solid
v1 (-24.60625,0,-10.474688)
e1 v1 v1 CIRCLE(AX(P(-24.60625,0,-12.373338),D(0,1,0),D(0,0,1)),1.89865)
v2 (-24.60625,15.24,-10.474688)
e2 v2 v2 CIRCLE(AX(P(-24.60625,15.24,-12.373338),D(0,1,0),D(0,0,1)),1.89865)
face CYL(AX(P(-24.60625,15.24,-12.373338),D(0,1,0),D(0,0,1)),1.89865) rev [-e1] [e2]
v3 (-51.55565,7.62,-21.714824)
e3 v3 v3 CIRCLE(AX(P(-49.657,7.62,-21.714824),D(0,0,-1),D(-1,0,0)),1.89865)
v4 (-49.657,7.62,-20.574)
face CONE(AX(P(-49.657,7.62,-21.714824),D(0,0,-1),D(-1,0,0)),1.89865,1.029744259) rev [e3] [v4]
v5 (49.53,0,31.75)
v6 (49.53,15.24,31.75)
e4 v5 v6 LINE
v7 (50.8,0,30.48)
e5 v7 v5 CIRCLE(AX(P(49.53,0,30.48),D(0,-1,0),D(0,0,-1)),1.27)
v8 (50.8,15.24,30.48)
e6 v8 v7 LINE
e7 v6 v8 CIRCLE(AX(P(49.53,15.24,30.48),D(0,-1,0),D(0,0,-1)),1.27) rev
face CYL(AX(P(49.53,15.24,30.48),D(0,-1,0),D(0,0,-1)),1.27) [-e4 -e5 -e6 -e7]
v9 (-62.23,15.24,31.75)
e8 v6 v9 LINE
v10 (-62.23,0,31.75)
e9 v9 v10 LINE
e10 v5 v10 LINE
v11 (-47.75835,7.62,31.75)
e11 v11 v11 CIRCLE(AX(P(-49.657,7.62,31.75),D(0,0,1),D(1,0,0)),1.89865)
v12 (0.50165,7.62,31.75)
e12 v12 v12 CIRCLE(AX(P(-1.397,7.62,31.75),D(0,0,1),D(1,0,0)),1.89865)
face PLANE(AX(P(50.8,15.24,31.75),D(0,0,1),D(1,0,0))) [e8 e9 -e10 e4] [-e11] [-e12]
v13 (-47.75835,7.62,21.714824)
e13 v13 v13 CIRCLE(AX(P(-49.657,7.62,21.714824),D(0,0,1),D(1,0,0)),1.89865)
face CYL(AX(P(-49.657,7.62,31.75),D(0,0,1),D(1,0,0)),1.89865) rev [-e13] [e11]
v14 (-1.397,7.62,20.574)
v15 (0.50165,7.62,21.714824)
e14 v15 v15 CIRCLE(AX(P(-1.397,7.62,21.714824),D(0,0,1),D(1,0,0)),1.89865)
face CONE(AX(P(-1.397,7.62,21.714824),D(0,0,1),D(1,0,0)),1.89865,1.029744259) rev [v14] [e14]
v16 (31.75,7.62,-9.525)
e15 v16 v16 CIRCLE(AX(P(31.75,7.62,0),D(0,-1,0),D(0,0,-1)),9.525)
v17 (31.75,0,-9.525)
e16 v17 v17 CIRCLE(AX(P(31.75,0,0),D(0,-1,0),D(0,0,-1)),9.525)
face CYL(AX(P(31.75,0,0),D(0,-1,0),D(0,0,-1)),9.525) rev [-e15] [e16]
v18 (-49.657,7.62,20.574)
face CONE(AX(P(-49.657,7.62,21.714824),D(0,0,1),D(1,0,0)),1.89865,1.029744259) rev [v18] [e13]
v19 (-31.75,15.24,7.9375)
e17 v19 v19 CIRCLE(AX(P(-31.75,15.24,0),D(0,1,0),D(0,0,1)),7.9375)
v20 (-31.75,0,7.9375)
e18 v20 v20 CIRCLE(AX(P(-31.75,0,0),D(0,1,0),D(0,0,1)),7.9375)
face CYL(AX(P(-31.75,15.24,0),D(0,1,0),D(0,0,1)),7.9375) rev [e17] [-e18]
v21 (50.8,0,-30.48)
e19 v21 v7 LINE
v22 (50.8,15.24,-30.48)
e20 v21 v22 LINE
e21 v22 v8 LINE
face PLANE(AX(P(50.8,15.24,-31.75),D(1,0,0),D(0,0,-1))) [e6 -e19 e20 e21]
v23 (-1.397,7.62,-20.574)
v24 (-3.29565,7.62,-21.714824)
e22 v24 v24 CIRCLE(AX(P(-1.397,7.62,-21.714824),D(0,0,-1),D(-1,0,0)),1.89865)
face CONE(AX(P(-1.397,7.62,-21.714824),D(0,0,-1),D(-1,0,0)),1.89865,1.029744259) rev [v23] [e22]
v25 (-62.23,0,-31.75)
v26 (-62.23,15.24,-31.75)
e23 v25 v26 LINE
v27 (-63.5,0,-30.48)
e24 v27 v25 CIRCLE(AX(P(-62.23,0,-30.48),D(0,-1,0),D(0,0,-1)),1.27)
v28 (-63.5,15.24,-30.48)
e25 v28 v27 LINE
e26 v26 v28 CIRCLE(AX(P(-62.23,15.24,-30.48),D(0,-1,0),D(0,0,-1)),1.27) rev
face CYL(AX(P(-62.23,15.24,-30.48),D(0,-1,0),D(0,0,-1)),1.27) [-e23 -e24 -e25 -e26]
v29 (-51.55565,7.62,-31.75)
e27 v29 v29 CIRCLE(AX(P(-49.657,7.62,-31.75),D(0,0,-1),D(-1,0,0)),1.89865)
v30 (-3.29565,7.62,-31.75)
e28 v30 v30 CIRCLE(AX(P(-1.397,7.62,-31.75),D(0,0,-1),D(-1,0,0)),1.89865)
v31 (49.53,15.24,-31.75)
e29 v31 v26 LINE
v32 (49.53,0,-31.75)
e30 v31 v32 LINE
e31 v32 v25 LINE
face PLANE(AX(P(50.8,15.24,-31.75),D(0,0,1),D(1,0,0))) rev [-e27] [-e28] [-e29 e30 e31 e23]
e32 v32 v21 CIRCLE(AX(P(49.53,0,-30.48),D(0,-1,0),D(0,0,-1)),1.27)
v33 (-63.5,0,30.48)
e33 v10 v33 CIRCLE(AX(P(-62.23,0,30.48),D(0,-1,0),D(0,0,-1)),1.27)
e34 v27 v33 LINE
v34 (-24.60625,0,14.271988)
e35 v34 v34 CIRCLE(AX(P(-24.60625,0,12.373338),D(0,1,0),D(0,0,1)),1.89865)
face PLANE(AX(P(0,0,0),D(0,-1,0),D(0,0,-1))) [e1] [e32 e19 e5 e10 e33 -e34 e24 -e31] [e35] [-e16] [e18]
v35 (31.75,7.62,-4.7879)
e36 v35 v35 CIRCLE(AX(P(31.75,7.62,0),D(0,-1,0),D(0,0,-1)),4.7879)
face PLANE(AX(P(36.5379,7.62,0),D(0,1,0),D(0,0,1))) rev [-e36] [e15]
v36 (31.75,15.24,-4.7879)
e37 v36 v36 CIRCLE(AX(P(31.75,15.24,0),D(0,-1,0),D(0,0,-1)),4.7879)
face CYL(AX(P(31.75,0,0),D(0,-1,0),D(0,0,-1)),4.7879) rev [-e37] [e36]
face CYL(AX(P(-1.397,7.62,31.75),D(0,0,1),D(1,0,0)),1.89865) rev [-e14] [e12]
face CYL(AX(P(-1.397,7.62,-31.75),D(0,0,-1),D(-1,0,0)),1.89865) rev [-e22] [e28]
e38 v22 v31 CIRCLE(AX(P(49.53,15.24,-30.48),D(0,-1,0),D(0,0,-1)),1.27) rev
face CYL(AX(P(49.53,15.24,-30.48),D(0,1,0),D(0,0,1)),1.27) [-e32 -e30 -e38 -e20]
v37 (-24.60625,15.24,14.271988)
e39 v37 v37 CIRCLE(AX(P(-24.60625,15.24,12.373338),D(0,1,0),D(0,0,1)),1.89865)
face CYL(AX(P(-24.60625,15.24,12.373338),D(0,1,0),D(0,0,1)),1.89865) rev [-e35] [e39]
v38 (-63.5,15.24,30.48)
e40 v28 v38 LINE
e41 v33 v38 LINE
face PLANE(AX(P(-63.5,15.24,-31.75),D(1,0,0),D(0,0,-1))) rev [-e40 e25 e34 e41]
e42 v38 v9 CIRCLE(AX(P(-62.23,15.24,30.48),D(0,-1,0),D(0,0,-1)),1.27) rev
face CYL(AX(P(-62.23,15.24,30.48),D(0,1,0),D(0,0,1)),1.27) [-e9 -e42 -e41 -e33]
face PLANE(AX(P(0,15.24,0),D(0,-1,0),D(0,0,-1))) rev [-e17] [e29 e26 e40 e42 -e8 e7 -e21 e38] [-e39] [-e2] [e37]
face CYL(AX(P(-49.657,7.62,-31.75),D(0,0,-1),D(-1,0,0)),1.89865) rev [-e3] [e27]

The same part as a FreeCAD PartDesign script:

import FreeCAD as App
import Part
import Sketcher
from FreeCAD import Vector
Q = App.Units.Quantity


def edges_at(feature, points):
    """Names of the edges that pass closest to the given points."""
    edges = feature.Shape.Edges
    near = lambda p: min(range(len(edges)), key=lambda i: edges[i].distToShape(Part.Vertex(*p))[0])
    return sorted({f"Edge{near(p) + 1}" for p in points})

doc = App.newDocument("Part")
body = doc.addObject("PartDesign::Body", "Body")

# Sketch on XZ plane
sketch1 = doc.addObject("Sketcher::SketchObject", "Sketch")
body.addObject(sketch1)
sketch1.AttachmentSupport = (doc.XZ_Plane, [""])
sketch1.MapMode = "FlatFace"
sketch1.addGeometry([
    Part.LineSegment(Vector(-64, -32, 0), Vector(-64, 32, 0)),
    Part.LineSegment(Vector(-64, 32, 0), Vector(51, 32, 0)),
    Part.LineSegment(Vector(51, 32, 0), Vector(51, -32, 0)),
    Part.LineSegment(Vector(51, -32, 0), Vector(-64, -32, 0)),
], False)
sketch1.addConstraint([
    Sketcher.Constraint("Coincident", 0, 2, 1, 1),
    Sketcher.Constraint("Coincident", 1, 2, 2, 1),
    Sketcher.Constraint("Coincident", 2, 2, 3, 1),
    Sketcher.Constraint("Coincident", 3, 2, 0, 1),
    Sketcher.Constraint("Vertical", 0),
    Sketcher.Constraint("Horizontal", 1),
    Sketcher.Constraint("Vertical", 2),
    Sketcher.Constraint("Horizontal", 3),
    Sketcher.Constraint("DistanceX", 1, 1, 1, 2, Q("4.5 in")),
    Sketcher.Constraint("DistanceY", 0, 1, 0, 2, Q("2.5 in")),
    Sketcher.Constraint("DistanceX", -1, 1, 1, 2, Q("2 in")),
    Sketcher.Constraint("DistanceY", -1, 1, 0, 2, Q("1.25 in")),
])
pad1 = doc.addObject("PartDesign::Pad", "Pad")
body.addObject(pad1)
pad1.Profile = sketch1
pad1.Length = Q("0.6 in")
pad1.Reversed = True

# Sketch on XZ plane
sketch2 = doc.addObject("Sketcher::SketchObject", "Sketch001")
body.addObject(sketch2)
sketch2.AttachmentSupport = (doc.XZ_Plane, [""])
sketch2.MapMode = "FlatFace"
sketch2.AttachmentOffset = App.Placement(Vector(0, 0, -0.6 * 25.4), App.Rotation())
sketch2.addGeometry(Part.Circle(Vector(-32, 0, 0), Vector(0, 0, 1), 8), False)
sketch2.addConstraint([
    Sketcher.Constraint("PointOnObject", 0, 3, -1),
    Sketcher.Constraint("Diameter", 0, Q("0.625 in")),
    Sketcher.Constraint("DistanceX", 0, 3, -1, 1, Q("1.25 in")),
])
doc.recompute()
hole = doc.addObject("PartDesign::Hole", "Hole")
body.addObject(hole)
hole.Profile = sketch2
hole.ThreadType = "None"
hole.Diameter = Q("0.625 in")
hole.DepthType = "ThroughAll"
hole.Reversed = True

# Sketch on XZ plane
sketch3 = doc.addObject("Sketcher::SketchObject", "Sketch002")
body.addObject(sketch3)
sketch3.AttachmentSupport = (doc.XZ_Plane, [""])
sketch3.MapMode = "FlatFace"
sketch3.AttachmentOffset = App.Placement(Vector(0, 0, -0.6 * 25.4), App.Rotation())
sketch3.addGeometry([
    Part.Circle(Vector(-24.6, 12.4, 0), Vector(0, 0, 1), 1.9),
    Part.Circle(Vector(-24.6, -12.4, 0), Vector(0, 0, 1), 1.9),
], False)
sketch3.addConstraint([
    Sketcher.Constraint("Equal", 0, 1),
    Sketcher.Constraint("Symmetric", 0, 3, 1, 3, -1),
    Sketcher.Constraint("Diameter", 0, Q("0.1495 in")),
    Sketcher.Constraint("DistanceX", 0, 3, -1, 1, Q("0.96875 in")),
    Sketcher.Constraint("DistanceY", -1, 1, 0, 3, 12.373338),
])
doc.recompute()
hole2 = doc.addObject("PartDesign::Hole", "Hole001")
body.addObject(hole2)
hole2.Profile = sketch3
hole2.ThreadType = "None"
hole2.Diameter = Q("0.1495 in")
hole2.DepthType = "ThroughAll"
hole2.Reversed = True

# Sketch on XZ plane
sketch4 = doc.addObject("Sketcher::SketchObject", "Sketch003")
body.addObject(sketch4)
sketch4.AttachmentSupport = (doc.XZ_Plane, [""])
sketch4.MapMode = "FlatFace"
sketch4.addGeometry(Part.Circle(Vector(31.8, 0, 0), Vector(0, 0, 1), 4.8), False)
sketch4.addConstraint([
    Sketcher.Constraint("PointOnObject", 0, 3, -1),
    Sketcher.Constraint("Diameter", 0, Q("0.377 in")),
    Sketcher.Constraint("DistanceX", -1, 1, 0, 3, Q("1.25 in")),
])
doc.recompute()
hole3 = doc.addObject("PartDesign::Hole", "Hole002")
body.addObject(hole3)
hole3.Profile = sketch4
hole3.ThreadType = "None"
hole3.Diameter = Q("0.377 in")
hole3.DepthType = "ThroughAll"
hole3.HoleCutType = "Counterbore"
hole3.HoleCutDiameter = Q("0.75 in")
hole3.HoleCutDepth = Q("0.3 in")

# Sketch on XY plane
sketch5 = doc.addObject("Sketcher::SketchObject", "Sketch004")
body.addObject(sketch5)
sketch5.AttachmentSupport = (doc.XY_Plane, [""])
sketch5.MapMode = "FlatFace"
sketch5.AttachmentOffset = App.Placement(Vector(0, 0, -1.25 * 25.4), App.Rotation())
sketch5.addGeometry([
    Part.Circle(Vector(-49.7, 7.6, 0), Vector(0, 0, 1), 1.9),
    Part.Circle(Vector(-1.4, 7.6, 0), Vector(0, 0, 1), 1.9),
], False)
sketch5.addConstraint([
    Sketcher.Constraint("Equal", 0, 1),
    Sketcher.Constraint("Horizontal", 0, 3, 1, 3),
    Sketcher.Constraint("Diameter", 0, Q("0.1495 in")),
    Sketcher.Constraint("DistanceY", -1, 1, 0, 3, Q("0.3 in")),
    Sketcher.Constraint("DistanceX", 0, 3, 1, 3, Q("1.9 in")),
    Sketcher.Constraint("DistanceX", 0, 3, -1, 1, Q("1.955 in")),
])
doc.recompute()
hole4 = doc.addObject("PartDesign::Hole", "Hole003")
body.addObject(hole4)
hole4.Profile = sketch5
hole4.ThreadType = "None"
hole4.Diameter = Q("0.1495 in")
hole4.DepthType = "Dimension"
hole4.Depth = 10.035176
hole4.DrillPoint = "Angled"
hole4.DrillPointAngle = 118
hole4.Reversed = True

# Sketch on XY plane
sketch6 = doc.addObject("Sketcher::SketchObject", "Sketch005")
body.addObject(sketch6)
sketch6.AttachmentSupport = (doc.XY_Plane, [""])
sketch6.MapMode = "FlatFace"
sketch6.AttachmentOffset = App.Placement(Vector(0, 0, 1.25 * 25.4), App.Rotation())
sketch6.addGeometry([
    Part.Circle(Vector(-49.7, 7.6, 0), Vector(0, 0, 1), 1.9),
    Part.Circle(Vector(-1.4, 7.6, 0), Vector(0, 0, 1), 1.9),
], False)
sketch6.addConstraint([
    Sketcher.Constraint("Equal", 0, 1),
    Sketcher.Constraint("Horizontal", 0, 3, 1, 3),
    Sketcher.Constraint("Diameter", 0, Q("0.1495 in")),
    Sketcher.Constraint("DistanceY", -1, 1, 0, 3, Q("0.3 in")),
    Sketcher.Constraint("DistanceX", 0, 3, 1, 3, Q("1.9 in")),
    Sketcher.Constraint("DistanceX", 0, 3, -1, 1, Q("1.955 in")),
])
doc.recompute()
hole5 = doc.addObject("PartDesign::Hole", "Hole004")
body.addObject(hole5)
hole5.Profile = sketch6
hole5.ThreadType = "None"
hole5.Diameter = Q("0.1495 in")
hole5.DepthType = "Dimension"
hole5.Depth = 10.035176
hole5.DrillPoint = "Angled"
hole5.DrillPointAngle = 118
doc.recompute()

fillet = doc.addObject("PartDesign::Fillet", "Fillet")
body.addObject(fillet)
fillet.Base = (hole5, edges_at(hole5, [
    (50.8, 7.62, -31.75),
    (-63.5, 7.62, -31.75),
    (-63.5, 7.62, 31.75),
    (50.8, 7.62, 31.75),
]))
fillet.Radius = Q("0.05 in")

doc.recompute()
